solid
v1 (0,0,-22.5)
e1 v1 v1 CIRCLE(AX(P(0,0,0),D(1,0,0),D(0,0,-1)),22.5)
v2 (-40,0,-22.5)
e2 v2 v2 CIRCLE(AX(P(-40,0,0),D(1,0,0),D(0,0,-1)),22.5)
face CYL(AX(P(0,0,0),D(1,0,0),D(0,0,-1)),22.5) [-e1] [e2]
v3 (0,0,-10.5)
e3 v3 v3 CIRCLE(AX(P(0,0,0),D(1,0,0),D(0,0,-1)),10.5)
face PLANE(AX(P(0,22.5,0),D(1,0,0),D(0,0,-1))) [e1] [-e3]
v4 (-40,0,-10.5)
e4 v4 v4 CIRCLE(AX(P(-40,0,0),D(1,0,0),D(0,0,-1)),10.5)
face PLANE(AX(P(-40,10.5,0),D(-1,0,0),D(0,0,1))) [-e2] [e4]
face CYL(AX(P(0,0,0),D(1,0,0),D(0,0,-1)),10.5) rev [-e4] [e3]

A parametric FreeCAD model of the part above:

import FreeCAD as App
import Part
import Sketcher

V = App.Vector
Q = App.Units.Quantity

doc = App.newDocument("Part")
body = doc.addObject("PartDesign::Body", "Body")

# Sketch on XY plane
sketch1 = body.newObject("Sketcher::SketchObject", "Sketch")
sketch1.AttachmentSupport = (doc.getObject("XY_Plane"), [""])
sketch1.MapMode = "FlatFace"
sketch1.addGeometry([
    Part.LineSegment(V(-40, 22, 0), V(-40, 10, 0)),
    Part.LineSegment(V(-40, 10, 0), V(0, 10, 0)),
    Part.LineSegment(V(0, 10, 0), V(0, 22, 0)),
    Part.LineSegment(V(0, 22, 0), V(-40, 22, 0)),
], False)
sketch1.addConstraint([
    Sketcher.Constraint("Coincident", 0, 2, 1, 1),
    Sketcher.Constraint("Coincident", 1, 2, 2, 1),
    Sketcher.Constraint("Coincident", 2, 2, 3, 1),
    Sketcher.Constraint("Coincident", 3, 2, 0, 1),
    Sketcher.Constraint("Vertical", 0),
    Sketcher.Constraint("Horizontal", 1),
    Sketcher.Constraint("Vertical", 2),
    Sketcher.Constraint("Horizontal", 3),
    Sketcher.Constraint("PointOnObject", 1, 2, -2),
    Sketcher.Constraint("DistanceX", 1, 1, 1, 2, Q("40 mm")),
    Sketcher.Constraint("DistanceY", 0, 2, 0, 1, Q("12 mm")),
    Sketcher.Constraint("DistanceY", -1, 1, 0, 2, Q("10.5 mm")),
])
revolution = body.newObject("PartDesign::Revolution", "Revolution")
revolution.Profile = sketch1
revolution.ReferenceAxis = (sketch1, ["H_Axis"])
revolution.Angle = 360

doc.recompute()
